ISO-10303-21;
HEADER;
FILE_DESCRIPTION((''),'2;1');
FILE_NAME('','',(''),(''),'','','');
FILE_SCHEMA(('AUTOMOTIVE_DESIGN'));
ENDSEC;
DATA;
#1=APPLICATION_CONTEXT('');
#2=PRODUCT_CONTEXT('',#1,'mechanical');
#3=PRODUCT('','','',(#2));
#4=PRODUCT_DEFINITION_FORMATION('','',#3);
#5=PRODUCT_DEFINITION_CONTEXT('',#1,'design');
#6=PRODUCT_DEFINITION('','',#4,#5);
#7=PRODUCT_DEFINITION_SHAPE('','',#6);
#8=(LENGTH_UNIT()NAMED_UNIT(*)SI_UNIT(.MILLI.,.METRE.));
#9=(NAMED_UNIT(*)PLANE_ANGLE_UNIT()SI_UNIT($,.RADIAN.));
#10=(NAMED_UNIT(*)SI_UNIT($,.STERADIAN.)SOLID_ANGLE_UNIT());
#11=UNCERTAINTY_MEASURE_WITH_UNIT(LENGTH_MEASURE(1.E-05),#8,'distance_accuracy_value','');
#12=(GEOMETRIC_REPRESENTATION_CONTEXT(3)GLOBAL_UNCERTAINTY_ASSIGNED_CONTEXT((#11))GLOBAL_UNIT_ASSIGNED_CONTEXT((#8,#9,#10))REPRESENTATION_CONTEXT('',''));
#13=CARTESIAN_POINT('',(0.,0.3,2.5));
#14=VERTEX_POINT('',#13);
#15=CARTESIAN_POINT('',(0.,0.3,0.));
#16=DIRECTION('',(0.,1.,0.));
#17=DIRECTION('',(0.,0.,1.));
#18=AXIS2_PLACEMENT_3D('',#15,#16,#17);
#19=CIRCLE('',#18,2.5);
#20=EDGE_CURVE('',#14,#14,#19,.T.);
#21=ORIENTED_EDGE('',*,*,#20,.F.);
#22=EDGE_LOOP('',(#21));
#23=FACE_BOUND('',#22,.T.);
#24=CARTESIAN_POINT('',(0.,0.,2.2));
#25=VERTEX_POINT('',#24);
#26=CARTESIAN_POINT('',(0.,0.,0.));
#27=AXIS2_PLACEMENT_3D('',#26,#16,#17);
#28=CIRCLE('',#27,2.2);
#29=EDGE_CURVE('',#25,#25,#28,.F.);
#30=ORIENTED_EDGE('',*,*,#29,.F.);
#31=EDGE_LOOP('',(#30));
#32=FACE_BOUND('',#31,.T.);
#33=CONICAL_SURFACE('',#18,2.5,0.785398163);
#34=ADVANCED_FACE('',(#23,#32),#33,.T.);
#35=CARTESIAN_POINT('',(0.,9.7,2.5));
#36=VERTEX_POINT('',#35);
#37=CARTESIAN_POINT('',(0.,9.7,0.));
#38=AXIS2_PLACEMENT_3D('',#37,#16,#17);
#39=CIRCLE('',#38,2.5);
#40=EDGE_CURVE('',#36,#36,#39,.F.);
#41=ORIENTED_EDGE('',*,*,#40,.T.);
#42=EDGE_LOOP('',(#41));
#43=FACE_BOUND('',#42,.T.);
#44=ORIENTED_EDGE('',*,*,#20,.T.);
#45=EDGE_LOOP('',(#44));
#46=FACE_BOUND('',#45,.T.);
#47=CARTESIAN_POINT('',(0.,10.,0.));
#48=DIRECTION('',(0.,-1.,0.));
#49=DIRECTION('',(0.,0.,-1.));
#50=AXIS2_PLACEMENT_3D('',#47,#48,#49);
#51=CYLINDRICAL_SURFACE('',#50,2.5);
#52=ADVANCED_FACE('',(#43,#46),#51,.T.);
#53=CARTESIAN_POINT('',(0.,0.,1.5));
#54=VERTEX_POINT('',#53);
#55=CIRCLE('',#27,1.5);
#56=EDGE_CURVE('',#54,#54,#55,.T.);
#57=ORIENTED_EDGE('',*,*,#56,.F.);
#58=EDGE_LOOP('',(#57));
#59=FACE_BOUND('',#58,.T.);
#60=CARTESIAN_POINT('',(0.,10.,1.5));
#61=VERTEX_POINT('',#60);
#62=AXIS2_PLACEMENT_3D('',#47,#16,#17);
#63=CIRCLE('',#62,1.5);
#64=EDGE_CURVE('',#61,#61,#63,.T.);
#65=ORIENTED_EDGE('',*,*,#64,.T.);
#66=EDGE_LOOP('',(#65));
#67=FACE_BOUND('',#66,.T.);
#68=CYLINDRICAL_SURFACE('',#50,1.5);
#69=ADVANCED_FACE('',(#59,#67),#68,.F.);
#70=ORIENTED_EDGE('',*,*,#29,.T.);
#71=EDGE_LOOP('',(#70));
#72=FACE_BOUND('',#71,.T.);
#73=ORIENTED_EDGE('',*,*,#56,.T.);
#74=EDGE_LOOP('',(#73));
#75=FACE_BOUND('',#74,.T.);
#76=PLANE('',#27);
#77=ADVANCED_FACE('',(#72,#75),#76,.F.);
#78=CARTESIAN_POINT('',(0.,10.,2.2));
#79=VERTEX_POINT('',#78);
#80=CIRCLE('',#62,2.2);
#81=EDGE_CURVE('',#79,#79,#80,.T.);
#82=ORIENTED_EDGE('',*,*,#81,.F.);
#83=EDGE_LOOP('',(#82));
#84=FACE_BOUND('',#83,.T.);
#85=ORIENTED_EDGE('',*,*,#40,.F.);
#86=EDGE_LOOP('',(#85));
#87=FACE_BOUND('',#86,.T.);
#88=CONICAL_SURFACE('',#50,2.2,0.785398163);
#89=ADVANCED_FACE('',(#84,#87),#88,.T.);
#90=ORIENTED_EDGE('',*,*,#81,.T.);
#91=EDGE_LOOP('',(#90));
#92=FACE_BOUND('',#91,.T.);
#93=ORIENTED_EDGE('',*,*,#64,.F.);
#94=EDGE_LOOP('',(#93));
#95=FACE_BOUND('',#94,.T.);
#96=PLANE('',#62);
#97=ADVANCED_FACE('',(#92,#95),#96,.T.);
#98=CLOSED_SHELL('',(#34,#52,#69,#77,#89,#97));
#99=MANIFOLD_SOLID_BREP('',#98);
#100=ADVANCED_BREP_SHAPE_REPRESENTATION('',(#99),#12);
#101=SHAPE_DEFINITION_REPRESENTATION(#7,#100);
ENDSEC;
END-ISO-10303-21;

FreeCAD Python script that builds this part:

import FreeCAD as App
import Part
import Sketcher


def edges_at(feature, points):
    """Names of the edges that pass closest to the given points."""
    edges = feature.Shape.Edges
    near = lambda p: min(range(len(edges)), key=lambda i: edges[i].distToShape(Part.Vertex(*p))[0])
    return sorted({f"Edge{near(p) + 1}" for p in points})

doc = App.newDocument("Part")
body = doc.addObject("PartDesign::Body", "Body")

# Sketch on XZ plane
sketch1 = body.newObject("Sketcher::SketchObject", "Sketch")
sketch1.AttachmentSupport = (doc.getObject("XZ_Plane"), [""])
sketch1.MapMode = "FlatFace"
sketch1.addGeometry([
    Part.Circle(App.Vector(0, 0, 0), App.Vector(0, 0, 1), 2.5),
    Part.Circle(App.Vector(0, 0, 0), App.Vector(0, 0, 1), 1.5),
], False)
sketch1.addConstraint([
    Sketcher.Constraint("Coincident", 0, 3, -1, 1),
    Sketcher.Constraint("Coincident", 1, 3, -1, 1),
    Sketcher.Constraint("Diameter", 0, 5.0),
    Sketcher.Constraint("Diameter", 1, 3.0),
])
pad1 = body.newObject("PartDesign::Pad", "Pad")
pad1.Profile = sketch1
pad1.Length = 10
pad1.Reversed = True
doc.recompute()

chamfer = body.newObject("PartDesign::Chamfer", "Chamfer")
chamfer.Base = (pad1, edges_at(pad1, [(0, 0, -2.5), (0, 10, -2.5)]))
chamfer.Size = 0.3

doc.recompute()
